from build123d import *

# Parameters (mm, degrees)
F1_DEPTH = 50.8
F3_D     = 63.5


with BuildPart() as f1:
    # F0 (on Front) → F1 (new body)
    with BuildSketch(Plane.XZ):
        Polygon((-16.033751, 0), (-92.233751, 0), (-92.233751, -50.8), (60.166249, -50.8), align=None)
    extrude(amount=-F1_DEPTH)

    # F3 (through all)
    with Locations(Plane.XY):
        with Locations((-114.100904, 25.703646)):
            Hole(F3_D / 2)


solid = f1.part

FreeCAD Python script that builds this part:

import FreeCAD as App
import Part
import Sketcher

V = App.Vector
Q = App.Units.Quantity


def add_polygon(sketch, points):
    """Adds a closed chain of lines whose ends are joined by coincident constraints."""
    first, n = sketch.GeometryCount, len(points)
    for a, b in zip(points, points[1:] + points[:1]):
        sketch.addGeometry(Part.LineSegment(App.Vector(*a, 0), App.Vector(*b, 0)), False)
    for i in range(n):
        sketch.addConstraint(Sketcher.Constraint("Coincident", first + i, 2, first + (i + 1) % n, 1))

doc = App.newDocument("Part")
body = doc.addObject("PartDesign::Body", "Body")

sketch1 = body.newObject("Sketcher::SketchObject", "Sketch")
sketch1.AttachmentSupport = (doc.getObject("XZ_Plane"), [""])
sketch1.MapMode = "FlatFace"
add_polygon(sketch1, [(-16, 0), (-92, 0), (-92, -51), (60, -51)])
sketch1.addConstraint([
    Sketcher.Constraint("Horizontal", 0),
    Sketcher.Constraint("Vertical", 1),
    Sketcher.Constraint("Horizontal", 2),
    Sketcher.Constraint("PointOnObject", 0, 2, -1),
    Sketcher.Constraint("DistanceX", 0, 2, 0, 1, Q("3 in")),
    Sketcher.Constraint("DistanceX", 2, 1, 2, 2, Q("6 in")),
    Sketcher.Constraint("DistanceY", 1, 2, 1, 1, Q("2 in")),
    Sketcher.Constraint("DistanceX", 0, 2, -1, 1, Q("92.233751 mm")),
])
pad1 = body.newObject("PartDesign::Pad", "Pad")
pad1.Profile = sketch1
pad1.Length = Q("2 in")
pad1.Reversed = True

sketch2 = body.newObject("Sketcher::SketchObject", "Sketch001")
sketch2.AttachmentSupport = (doc.getObject("XY_Plane"), [""])
sketch2.MapMode = "FlatFace"
sketch2.addGeometry(Part.Circle(V(-114, 26, 0), V(0, 0, 1), 32), False)
sketch2.addConstraint([
    Sketcher.Constraint("Diameter", 0, Q("2.5 in")),
    Sketcher.Constraint("DistanceX", 0, 3, -1, 1, Q("114.100904 mm")),
    Sketcher.Constraint("DistanceY", -1, 1, 0, 3, Q("25.703646 mm")),
])
doc.recompute()
hole = body.newObject("PartDesign::Hole", "Hole")
hole.Profile = sketch2
hole.ThreadType = "None"
hole.Diameter = Q("2.5 in")
hole.DepthType = "ThroughAll"

doc.recompute()
